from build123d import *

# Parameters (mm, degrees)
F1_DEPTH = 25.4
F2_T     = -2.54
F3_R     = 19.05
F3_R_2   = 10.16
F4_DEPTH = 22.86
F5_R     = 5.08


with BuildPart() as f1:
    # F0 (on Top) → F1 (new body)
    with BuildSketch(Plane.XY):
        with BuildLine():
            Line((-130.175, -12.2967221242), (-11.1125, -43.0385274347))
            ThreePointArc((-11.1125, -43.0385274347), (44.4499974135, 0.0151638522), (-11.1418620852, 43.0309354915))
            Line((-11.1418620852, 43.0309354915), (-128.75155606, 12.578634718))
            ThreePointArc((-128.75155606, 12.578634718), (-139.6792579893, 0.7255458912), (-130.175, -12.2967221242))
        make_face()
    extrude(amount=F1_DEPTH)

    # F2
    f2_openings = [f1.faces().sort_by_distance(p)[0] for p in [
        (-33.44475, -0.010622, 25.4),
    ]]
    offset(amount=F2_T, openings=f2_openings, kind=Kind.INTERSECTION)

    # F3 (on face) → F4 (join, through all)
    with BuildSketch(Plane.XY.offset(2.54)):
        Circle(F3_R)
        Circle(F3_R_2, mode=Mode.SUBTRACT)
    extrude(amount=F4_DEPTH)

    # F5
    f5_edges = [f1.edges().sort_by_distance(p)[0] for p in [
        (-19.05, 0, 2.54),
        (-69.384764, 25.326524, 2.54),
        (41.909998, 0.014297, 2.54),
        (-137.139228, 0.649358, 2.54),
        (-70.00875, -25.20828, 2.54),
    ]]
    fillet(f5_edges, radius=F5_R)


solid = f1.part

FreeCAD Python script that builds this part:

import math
import FreeCAD as App
import Part
import Sketcher

V = App.Vector
Q = App.Units.Quantity


def edges_at(feature, points):
    """Names of the edges that pass closest to the given points."""
    edges = feature.Shape.Edges
    near = lambda p: min(range(len(edges)), key=lambda i: edges[i].distToShape(Part.Vertex(*p))[0])
    return sorted({f"Edge{near(p) + 1}" for p in points})


def faces_at(feature, points):
    """Names of the faces that lie closest to the given points."""
    faces = feature.Shape.Faces
    near = lambda p: min(range(len(faces)), key=lambda i: faces[i].distToShape(Part.Vertex(*p))[0])
    return sorted({f"Face{near(p) + 1}" for p in points})

doc = App.newDocument("Part")
params = doc.addObject("Spreadsheet::Sheet", "Params")
for row, (alias, value) in enumerate([
    ("sketch1_radius", "0.5 in"),
    ("sketch1_radius2", "1.75 in"),
    ("sketch1_length", "4.783 in"),
    ("pad1_length", "1 in"),
    ("thickness_wall", "0.1 in"),
    ("sketch2_diameter", "1.5 in"),
    ("sketch2_diameter2", "0.8 in"),
    ("pad2_length", "0.9 in"),
    ("fillet_radius", "0.2 in"),
], start=1):
    params.set(f"A{row}", alias)
    params.set(f"B{row}", "=" + value)
    params.setAlias(f"B{row}", alias)

body = doc.addObject("PartDesign::Body", "Body")

# Sketch on XY plane
sketch1 = body.newObject("Sketcher::SketchObject", "Sketch")
sketch1.AttachmentSupport = (doc.getObject("XY_Plane"), [""])
sketch1.MapMode = "FlatFace"
sketch1.addGeometry([
    Part.LineSegment(V(-130.175, -12.296722, 0), V(-11.1125, -43.038527, 0)),
    Part.ArcOfCircle(Part.Circle(V(0, 0, 0), V(0, 0, 1), 44.45), math.radians(-104.477512), math.radians(104.516604)),
    Part.LineSegment(V(-11.141862, 43.030935, 0), V(-128.751556, 12.578635, 0)),
    Part.ArcOfCircle(Part.Circle(V(-127, 0, 0), V(0, 0, 1), 12.7), math.radians(97.927376), math.radians(255.522488)),
], False)
sketch1.addConstraint([
    Sketcher.Constraint("Tangent", 0, 2, 1, 1),
    Sketcher.Constraint("Tangent", 1, 2, 2, 1),
    Sketcher.Constraint("Coincident", 2, 2, 3, 1),
    Sketcher.Constraint("Tangent", 3, 2, 0, 1),
    Sketcher.Constraint("Coincident", 1, 3, -1, 1),
    Sketcher.Constraint("PointOnObject", 3, 3, -1),
    Sketcher.Constraint("Radius", 3, Q("0.5 in")),
    Sketcher.Constraint("Radius", 1, Q("1.75 in")),
    Sketcher.Constraint("DistanceX", 3, 3, -1, 1, Q("5 in")),
    Sketcher.Constraint("Distance", 2, Q("4.783 in")),
])
sketch1.setExpression("Constraints[6]", "Params.sketch1_radius")
sketch1.setExpression("Constraints[7]", "Params.sketch1_radius2")
sketch1.setExpression("Constraints[9]", "Params.sketch1_length")
pad1 = body.newObject("PartDesign::Pad", "Pad")
pad1.Profile = sketch1
pad1.setExpression("Length", "Params.pad1_length")
doc.recompute()

thickness = body.newObject("PartDesign::Thickness", "Thickness")
thickness.Base = (pad1, faces_at(pad1, [(-47.625, 0, 25.4)]))
thickness.setExpression("Value", "Params.thickness_wall")
thickness.Reversed = True
thickness.Join = "Intersection"

# Sketch on XY plane
sketch2 = body.newObject("Sketcher::SketchObject", "Sketch001")
sketch2.AttachmentSupport = (doc.getObject("XY_Plane"), [""])
sketch2.MapMode = "FlatFace"
sketch2.AttachmentOffset = App.Placement(V(0, 0, 0.1 * 25.4), App.Rotation())
sketch2.addGeometry([
    Part.Circle(V(0, 0, 0), V(0, 0, 1), 19.05),
    Part.Circle(V(0, 0, 0), V(0, 0, 1), 10.16),
], False)
sketch2.addConstraint([
    Sketcher.Constraint("Coincident", 0, 3, -1, 1),
    Sketcher.Constraint("Coincident", 1, 3, -1, 1),
    Sketcher.Constraint("Diameter", 0, Q("1.5 in")),
    Sketcher.Constraint("Diameter", 1, Q("0.8 in")),
])
sketch2.setExpression("Constraints[2]", "Params.sketch2_diameter")
sketch2.setExpression("Constraints[3]", "Params.sketch2_diameter2")
pad2 = body.newObject("PartDesign::Pad", "Pad001")
pad2.Profile = sketch2
pad2.setExpression("Length", "Params.pad2_length")
doc.recompute()

fillet = body.newObject("PartDesign::Fillet", "Fillet")
fillet.Base = (pad2, edges_at(pad2, [
    (-19.05, 0, 2.54),
    (-69.385, 25.327, 2.54),
    (41.91, 0.014, 2.54),
    (-137.139, 0.649, 2.54),
    (-70.009, -25.208, 2.54),
]))
fillet.setExpression("Radius", "Params.fillet_radius")

doc.recompute()
